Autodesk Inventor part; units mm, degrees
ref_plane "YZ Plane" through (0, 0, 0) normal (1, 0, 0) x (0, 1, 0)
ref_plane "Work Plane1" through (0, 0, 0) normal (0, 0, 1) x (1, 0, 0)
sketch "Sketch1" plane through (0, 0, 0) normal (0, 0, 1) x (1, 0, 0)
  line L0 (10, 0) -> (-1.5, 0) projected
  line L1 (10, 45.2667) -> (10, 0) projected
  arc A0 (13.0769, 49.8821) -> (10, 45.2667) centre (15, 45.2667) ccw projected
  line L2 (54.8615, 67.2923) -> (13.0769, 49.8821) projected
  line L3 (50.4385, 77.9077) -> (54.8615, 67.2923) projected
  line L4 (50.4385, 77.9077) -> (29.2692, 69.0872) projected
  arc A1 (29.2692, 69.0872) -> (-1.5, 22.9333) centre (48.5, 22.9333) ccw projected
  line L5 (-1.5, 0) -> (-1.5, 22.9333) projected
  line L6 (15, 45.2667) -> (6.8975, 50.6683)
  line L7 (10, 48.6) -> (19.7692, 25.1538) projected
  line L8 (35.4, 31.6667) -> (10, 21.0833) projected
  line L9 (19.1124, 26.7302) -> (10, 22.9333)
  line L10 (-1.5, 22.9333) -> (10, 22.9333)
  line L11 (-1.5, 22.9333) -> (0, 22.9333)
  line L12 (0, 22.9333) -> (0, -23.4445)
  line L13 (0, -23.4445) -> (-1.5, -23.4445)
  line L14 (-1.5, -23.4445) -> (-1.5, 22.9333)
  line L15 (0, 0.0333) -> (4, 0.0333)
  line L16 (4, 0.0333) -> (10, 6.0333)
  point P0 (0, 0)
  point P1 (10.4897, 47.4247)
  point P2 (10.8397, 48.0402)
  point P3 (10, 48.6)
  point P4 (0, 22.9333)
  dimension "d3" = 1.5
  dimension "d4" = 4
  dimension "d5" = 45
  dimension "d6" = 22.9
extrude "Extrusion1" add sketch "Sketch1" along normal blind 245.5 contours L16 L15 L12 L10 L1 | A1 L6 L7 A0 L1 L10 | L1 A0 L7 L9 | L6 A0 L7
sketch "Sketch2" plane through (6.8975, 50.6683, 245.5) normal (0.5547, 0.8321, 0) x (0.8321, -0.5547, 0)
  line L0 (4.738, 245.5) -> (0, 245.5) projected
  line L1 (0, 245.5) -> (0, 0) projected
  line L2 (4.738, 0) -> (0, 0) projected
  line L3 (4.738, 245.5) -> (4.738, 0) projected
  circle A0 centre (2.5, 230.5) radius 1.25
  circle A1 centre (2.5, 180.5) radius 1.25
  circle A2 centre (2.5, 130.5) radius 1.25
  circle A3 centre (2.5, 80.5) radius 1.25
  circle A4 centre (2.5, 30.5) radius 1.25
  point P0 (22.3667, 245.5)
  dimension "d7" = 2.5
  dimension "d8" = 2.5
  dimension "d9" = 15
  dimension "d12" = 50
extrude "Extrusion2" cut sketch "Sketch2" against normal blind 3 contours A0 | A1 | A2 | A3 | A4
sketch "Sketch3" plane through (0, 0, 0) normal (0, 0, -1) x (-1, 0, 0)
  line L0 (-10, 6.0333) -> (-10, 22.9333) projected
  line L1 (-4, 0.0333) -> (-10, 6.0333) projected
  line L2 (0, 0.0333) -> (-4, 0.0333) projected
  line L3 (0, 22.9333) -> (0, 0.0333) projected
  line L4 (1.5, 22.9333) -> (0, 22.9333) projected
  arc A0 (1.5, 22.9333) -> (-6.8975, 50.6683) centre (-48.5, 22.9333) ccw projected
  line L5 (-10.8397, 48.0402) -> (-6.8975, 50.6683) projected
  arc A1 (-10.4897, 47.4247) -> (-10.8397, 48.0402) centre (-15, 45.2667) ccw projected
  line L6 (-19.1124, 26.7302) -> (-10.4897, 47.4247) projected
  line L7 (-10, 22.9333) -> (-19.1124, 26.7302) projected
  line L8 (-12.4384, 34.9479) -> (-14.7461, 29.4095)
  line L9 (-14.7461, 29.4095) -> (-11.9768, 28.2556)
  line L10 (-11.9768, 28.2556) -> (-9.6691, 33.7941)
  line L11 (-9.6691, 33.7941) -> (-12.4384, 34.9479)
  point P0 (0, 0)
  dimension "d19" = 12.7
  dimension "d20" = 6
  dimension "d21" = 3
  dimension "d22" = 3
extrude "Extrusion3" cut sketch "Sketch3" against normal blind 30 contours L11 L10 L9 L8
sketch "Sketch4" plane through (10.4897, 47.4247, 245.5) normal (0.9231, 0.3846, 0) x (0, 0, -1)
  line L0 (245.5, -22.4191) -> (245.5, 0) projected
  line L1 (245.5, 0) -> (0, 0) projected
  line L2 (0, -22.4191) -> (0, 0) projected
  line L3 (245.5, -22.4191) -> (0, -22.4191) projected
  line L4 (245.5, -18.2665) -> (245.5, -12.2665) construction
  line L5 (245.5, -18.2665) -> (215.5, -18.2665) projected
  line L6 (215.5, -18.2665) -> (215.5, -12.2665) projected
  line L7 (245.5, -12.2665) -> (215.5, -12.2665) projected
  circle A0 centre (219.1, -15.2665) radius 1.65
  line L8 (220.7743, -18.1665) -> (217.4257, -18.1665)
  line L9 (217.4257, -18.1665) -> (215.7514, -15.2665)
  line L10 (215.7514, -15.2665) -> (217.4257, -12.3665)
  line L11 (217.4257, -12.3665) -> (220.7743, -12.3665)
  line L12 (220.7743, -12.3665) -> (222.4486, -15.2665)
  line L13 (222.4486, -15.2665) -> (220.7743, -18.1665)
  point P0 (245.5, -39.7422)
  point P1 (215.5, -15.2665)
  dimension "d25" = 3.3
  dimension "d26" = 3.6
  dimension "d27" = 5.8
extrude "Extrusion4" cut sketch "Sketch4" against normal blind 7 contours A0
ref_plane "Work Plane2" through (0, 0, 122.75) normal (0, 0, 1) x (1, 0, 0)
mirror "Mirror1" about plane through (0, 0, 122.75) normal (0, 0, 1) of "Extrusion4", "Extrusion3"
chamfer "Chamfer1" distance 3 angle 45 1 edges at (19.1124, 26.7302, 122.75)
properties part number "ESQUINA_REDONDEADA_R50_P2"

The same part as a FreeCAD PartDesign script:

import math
import FreeCAD as App
import Part
import Sketcher
from FreeCAD import Vector
Q = App.Units.Quantity


def edges_at(feature, points):
    """Names of the edges that pass closest to the given points."""
    edges = feature.Shape.Edges
    near = lambda p: min(range(len(edges)), key=lambda i: edges[i].distToShape(Part.Vertex(*p))[0])
    return sorted({f"Edge{near(p) + 1}" for p in points})


def add_polygon(sketch, points):
    """Adds a closed chain of lines whose ends are joined by coincident constraints."""
    first, n = sketch.GeometryCount, len(points)
    for a, b in zip(points, points[1:] + points[:1]):
        sketch.addGeometry(Part.LineSegment(App.Vector(*a, 0), App.Vector(*b, 0)), False)
    for i in range(n):
        sketch.addConstraint(Sketcher.Constraint("Coincident", first + i, 2, first + (i + 1) % n, 1))

doc = App.newDocument("Part")
params = doc.addObject("Spreadsheet::Sheet", "Params")
for row, (alias, value) in enumerate([
    ("sketch1_width", "4 mm"),
    ("sketch1_width2", "1.5 mm"),
    ("sketch1_height", "22.9 mm"),
    ("sketch1_radius", "5 mm"),
    ("sketch1_radius2", "50 mm"),
    ("pad1_length", "245.5 mm"),
    ("sketch2_diameter", "2.5 mm"),
    ("pocket1_length", "3 mm"),
    ("sketch3_length", "3 mm"),
    ("sketch3_length2", "6 mm"),
    ("pocket2_length", "30 mm"),
    ("sketch4_diameter", "3.3 mm"),
    ("pocket3_length", "7 mm"),
    ("chamfer_size", "3 mm"),
], start=1):
    params.set(f"A{row}", alias)
    params.set(f"B{row}", "=" + value)
    params.setAlias(f"B{row}", alias)

body = doc.addObject("PartDesign::Body", "Body")

# Sketch on XY plane
sketch1 = body.newObject("Sketcher::SketchObject", "Sketch")
sketch1.AttachmentSupport = (doc.getObject("XY_Plane"), [""])
sketch1.MapMode = "FlatFace"
sketch1.addGeometry([
    Part.LineSegment(Vector(4, 0, 0), Vector(10, 6, 0)),  # 0
    Part.LineSegment(Vector(10, 6, 0), Vector(10, 22.9, 0)),  # 1
    Part.LineSegment(Vector(10, 22.9, 0), Vector(19.1, 26.7, 0)),  # 2
    Part.LineSegment(Vector(19.1, 26.7, 0), Vector(10.5, 47.4, 0)),  # 3
    Part.ArcOfCircle(Part.Circle(Vector(15, 45.3, 0), Vector(0, 0, 1), 5), math.radians(146.31), math.radians(154.43)),  # 4
    Part.LineSegment(Vector(10.8, 48, 0), Vector(6.9, 50.7, 0)),  # 5
    Part.ArcOfCircle(Part.Circle(Vector(48.5, 22.9, 0), Vector(0, 0, 1), 50), math.radians(146), math.radians(180)),  # 6
    Part.LineSegment(Vector(-1.5, 22.9, 0), Vector(0, 22.9, 0)),  # 7
    Part.LineSegment(Vector(0, 22.9, 0), Vector(0, 0, 0)),  # 8
    Part.LineSegment(Vector(0, 0, 0), Vector(4, 0, 0)),  # 9
], False)
sketch1.addConstraint([
    Sketcher.Constraint("Coincident", 0, 2, 1, 1),
    Sketcher.Constraint("Coincident", 1, 2, 2, 1),
    Sketcher.Constraint("Coincident", 2, 2, 3, 1),
    Sketcher.Constraint("Coincident", 3, 2, 4, 2),
    Sketcher.Constraint("Coincident", 4, 1, 5, 1),
    Sketcher.Constraint("Coincident", 5, 2, 6, 1),
    Sketcher.Constraint("Coincident", 6, 2, 7, 1),
    Sketcher.Constraint("Coincident", 7, 2, 8, 1),
    Sketcher.Constraint("Coincident", 8, 2, 9, 1),
    Sketcher.Constraint("Coincident", 9, 2, 0, 1),
    Sketcher.Constraint("Vertical", 1),
    Sketcher.Constraint("Horizontal", 7),
    Sketcher.Constraint("Vertical", 8),
    Sketcher.Constraint("Horizontal", 9),
    Sketcher.Constraint("PointOnObject", 7, 2, -2),
    Sketcher.Constraint("Perpendicular", 2, 3),
    Sketcher.Constraint("Horizontal", 6, 3, 1, 2),
    Sketcher.Constraint("Horizontal", 1, 2, 6, 2),
    Sketcher.Constraint("DistanceX", 9, 1, 9, 2, 4.0),
    Sketcher.Constraint("Angle", 0, Q("45 deg")),
    Sketcher.Constraint("DistanceX", 7, 1, 7, 2, 1.5),
    Sketcher.Constraint("DistanceY", 8, 2, 8, 1, 22.9),
    Sketcher.Constraint("Radius", 4, 5.0),
    Sketcher.Constraint("Radius", 6, 50.0),
    Sketcher.Constraint("DistanceY", 1, 1, 1, 2, 16.9),
    Sketcher.Constraint("DistanceX", -1, 1, 4, 3, 15.0),
    Sketcher.Constraint("Angle", 2, Q("22.6202 deg")),
    Sketcher.Constraint("Angle", 5, Q("146.3103 deg")),
    Sketcher.Constraint("DistanceX", 3, 2, 4, 1, 0.35),
    Sketcher.Constraint("DistanceY", 2, 2, 4, 1, 21.31),
    Sketcher.Constraint("Distance", 3, 22.419),
    Sketcher.Constraint("DistanceY", -1, 1, 4, 3, 45.2667),
])
sketch1.setExpression("Constraints[18]", "Params.sketch1_width")
sketch1.setExpression("Constraints[20]", "Params.sketch1_width2")
sketch1.setExpression("Constraints[21]", "Params.sketch1_height")
sketch1.setExpression("Constraints[22]", "Params.sketch1_radius")
sketch1.setExpression("Constraints[23]", "Params.sketch1_radius2")
pad1 = body.newObject("PartDesign::Pad", "Pad")
pad1.Profile = sketch1
pad1.setExpression("Length", "Params.pad1_length")

# Sketch on an angled plane
sketch2 = body.newObject("Sketcher::SketchObject", "Sketch001")
sketch2.Placement = App.Placement(Vector(6.8975, 50.6683, 245.5), App.Rotation(Vector(0.832065678, -0.55467712, 0), Vector(0, 0, -1), Vector(0.55467712, 0.832065678, 0), "ZXY"))
sketch2.addGeometry([
    Part.Circle(Vector(2.5, 230.5, 0), Vector(0, 0, 1), 1.2),  # 0
    Part.Circle(Vector(2.5, 180.5, 0), Vector(0, 0, 1), 1.2),  # 1
    Part.Circle(Vector(2.5, 130.5, 0), Vector(0, 0, 1), 1.2),  # 2
    Part.Circle(Vector(2.5, 80.5, 0), Vector(0, 0, 1), 1.2),  # 3
    Part.Circle(Vector(2.5, 30.5, 0), Vector(0, 0, 1), 1.2),  # 4
], False)
sketch2.addConstraint([
    Sketcher.Constraint("Equal", 0, 1),
    Sketcher.Constraint("Equal", 1, 2),
    Sketcher.Constraint("Equal", 2, 3),
    Sketcher.Constraint("Equal", 3, 4),
    Sketcher.Constraint("Vertical", 0, 3, 1, 3),
    Sketcher.Constraint("Vertical", 1, 3, 2, 3),
    Sketcher.Constraint("Vertical", 2, 3, 3, 3),
    Sketcher.Constraint("Vertical", 3, 3, 4, 3),
    Sketcher.Constraint("Diameter", 0, 2.5),
    Sketcher.Constraint("DistanceY", 1, 3, 0, 3, 50.0),
    Sketcher.Constraint("DistanceY", 2, 3, 1, 3, 50.0),
    Sketcher.Constraint("DistanceY", 3, 3, 2, 3, 50.0),
    Sketcher.Constraint("DistanceY", 4, 3, 3, 3, 50.0),
    Sketcher.Constraint("DistanceX", -1, 1, 0, 3, 2.5),
    Sketcher.Constraint("DistanceY", -1, 1, 0, 3, 230.5),
])
sketch2.setExpression("Constraints[8]", "Params.sketch2_diameter")
pocket1 = body.newObject("PartDesign::Pocket", "Pocket")
pocket1.Profile = sketch2
pocket1.setExpression("Length", "Params.pocket1_length")

# Sketch on XY plane
sketch3 = body.newObject("Sketcher::SketchObject", "Sketch002")
sketch3.AttachmentSupport = (doc.getObject("XY_Plane"), [""])
sketch3.MapMode = "FlatFace"
add_polygon(sketch3, [(9.7, 33.8), (12.4, 34.9), (14.7, 29.4), (12, 28.3)])  # lines 0-3
sketch3.addConstraint([
    Sketcher.Constraint("Perpendicular", 0, 1),
    Sketcher.Constraint("Perpendicular", 1, 2),
    Sketcher.Constraint("Perpendicular", 2, 3),
    Sketcher.Constraint("Distance", 0, 3.0),
    Sketcher.Constraint("Distance", 1, 6.0),
    Sketcher.Constraint("Angle", 1, Q("-67.3798 deg")),
    Sketcher.Constraint("DistanceY", -1, 1, 0, 2, 34.948),
    Sketcher.Constraint("DistanceX", -1, 1, 1, 2, 14.746),
])
sketch3.setExpression("Constraints[7]", "Params.sketch3_length")
sketch3.setExpression("Constraints[8]", "Params.sketch3_length2")
pocket2 = body.newObject("PartDesign::Pocket", "Pocket001")
pocket2.Profile = sketch3
pocket2.setExpression("Length", "Params.pocket2_length")
pocket2.Reversed = True

# Sketch on an angled plane
sketch4 = body.newObject("Sketcher::SketchObject", "Sketch003")
sketch4.Placement = App.Placement(Vector(10.4897, 47.4247, 245.5), App.Rotation(Vector(0, 0, -1), Vector(-0.384594083, 0.923085798, 0), Vector(0.923085798, 0.384594083, 0), "ZXY"))
sketch4.addGeometry(Part.Circle(Vector(219.1, -15.3, 0), Vector(0, 0, 1), 1.6), False)
sketch4.addConstraint([
    Sketcher.Constraint("Diameter", 0, 3.3),
    Sketcher.Constraint("DistanceX", -1, 1, 0, 3, 219.1),
    Sketcher.Constraint("DistanceY", 0, 3, -1, 1, 15.2665),
])
sketch4.setExpression("Constraints[0]", "Params.sketch4_diameter")
pocket3 = body.newObject("PartDesign::Pocket", "Pocket002")
pocket3.Profile = sketch4
pocket3.setExpression("Length", "Params.pocket3_length")
doc.recompute()

datumplane = body.newObject("PartDesign::Plane", "DatumPlane")
datumplane.AttachmentSupport = (doc.getObject("XY_Plane"), [""])
datumplane.MapMode = "FlatFace"
datumplane.AttachmentOffset = App.Placement(Vector(0, 0, 122.75), App.Rotation())
mirrored = body.newObject("PartDesign::Mirrored", "Mirrored")
mirrored.Originals = [pocket3, pocket2]
mirrored.MirrorPlane = (datumplane, [""])
body.Tip = mirrored
doc.recompute()

chamfer = body.newObject("PartDesign::Chamfer", "Chamfer")
chamfer.Base = (mirrored, edges_at(mirrored, [(19.112, 26.73, 122.75)]))
chamfer.setExpression("Size", "Params.chamfer_size")

doc.recompute()
